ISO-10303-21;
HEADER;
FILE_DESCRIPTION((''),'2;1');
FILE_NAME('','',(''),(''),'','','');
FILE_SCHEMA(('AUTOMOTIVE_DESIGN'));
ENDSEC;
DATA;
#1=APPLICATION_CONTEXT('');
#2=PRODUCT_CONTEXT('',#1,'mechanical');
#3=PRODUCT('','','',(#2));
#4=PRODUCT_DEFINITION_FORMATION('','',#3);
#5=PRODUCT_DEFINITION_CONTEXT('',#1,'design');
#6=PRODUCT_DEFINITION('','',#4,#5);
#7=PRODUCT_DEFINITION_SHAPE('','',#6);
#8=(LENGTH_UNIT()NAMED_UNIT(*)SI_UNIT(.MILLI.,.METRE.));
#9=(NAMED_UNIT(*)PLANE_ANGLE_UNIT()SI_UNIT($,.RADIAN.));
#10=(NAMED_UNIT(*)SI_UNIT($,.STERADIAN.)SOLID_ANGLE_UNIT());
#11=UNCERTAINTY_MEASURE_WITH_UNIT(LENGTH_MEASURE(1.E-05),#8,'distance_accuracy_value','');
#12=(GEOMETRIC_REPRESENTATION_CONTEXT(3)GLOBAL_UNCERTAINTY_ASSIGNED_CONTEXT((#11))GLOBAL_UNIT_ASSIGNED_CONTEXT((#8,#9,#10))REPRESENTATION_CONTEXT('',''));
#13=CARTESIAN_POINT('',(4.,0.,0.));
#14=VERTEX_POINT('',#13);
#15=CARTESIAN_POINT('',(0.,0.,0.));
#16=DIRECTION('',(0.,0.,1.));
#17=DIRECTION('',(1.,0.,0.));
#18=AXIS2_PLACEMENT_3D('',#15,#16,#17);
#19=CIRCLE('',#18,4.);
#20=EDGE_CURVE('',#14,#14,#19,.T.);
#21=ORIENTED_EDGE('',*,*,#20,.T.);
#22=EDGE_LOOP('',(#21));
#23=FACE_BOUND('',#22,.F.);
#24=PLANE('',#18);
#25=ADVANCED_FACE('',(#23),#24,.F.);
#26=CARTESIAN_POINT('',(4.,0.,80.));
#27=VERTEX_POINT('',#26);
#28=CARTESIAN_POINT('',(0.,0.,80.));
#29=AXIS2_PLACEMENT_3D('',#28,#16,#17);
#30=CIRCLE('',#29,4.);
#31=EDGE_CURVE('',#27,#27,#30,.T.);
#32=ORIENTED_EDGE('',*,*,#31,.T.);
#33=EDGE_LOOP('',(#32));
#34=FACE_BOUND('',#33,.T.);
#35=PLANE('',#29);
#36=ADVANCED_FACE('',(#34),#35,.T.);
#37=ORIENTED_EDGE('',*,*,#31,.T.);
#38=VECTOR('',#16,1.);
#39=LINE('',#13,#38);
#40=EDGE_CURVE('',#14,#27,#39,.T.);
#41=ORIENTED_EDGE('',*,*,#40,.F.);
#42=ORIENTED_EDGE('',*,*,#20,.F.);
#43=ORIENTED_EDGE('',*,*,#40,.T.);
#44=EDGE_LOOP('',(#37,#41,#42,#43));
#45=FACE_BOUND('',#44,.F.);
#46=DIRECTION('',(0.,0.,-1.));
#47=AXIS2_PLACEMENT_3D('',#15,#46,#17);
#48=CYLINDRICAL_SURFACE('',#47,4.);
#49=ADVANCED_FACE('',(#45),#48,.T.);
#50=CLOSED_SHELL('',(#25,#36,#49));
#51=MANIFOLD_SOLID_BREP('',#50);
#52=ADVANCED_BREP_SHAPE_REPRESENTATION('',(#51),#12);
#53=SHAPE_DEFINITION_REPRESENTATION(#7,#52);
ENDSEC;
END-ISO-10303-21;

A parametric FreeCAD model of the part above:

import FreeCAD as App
import Part
import Sketcher

V = App.Vector

doc = App.newDocument("Part")
body = doc.addObject("PartDesign::Body", "Body")

# Sketch on XY plane
sketch1 = body.newObject("Sketcher::SketchObject", "Sketch")
sketch1.AttachmentSupport = (doc.getObject("XY_Plane"), [""])
sketch1.MapMode = "FlatFace"
sketch1.addGeometry(Part.Circle(V(0, 0, 0), V(0, 0, 1), 4), False)
sketch1.addConstraint([
    Sketcher.Constraint("Coincident", 0, 3, -1, 1),
    Sketcher.Constraint("Diameter", 0, 8.0),
])
pad1 = body.newObject("PartDesign::Pad", "Pad")
pad1.Profile = sketch1
pad1.Length = 80

doc.recompute()
